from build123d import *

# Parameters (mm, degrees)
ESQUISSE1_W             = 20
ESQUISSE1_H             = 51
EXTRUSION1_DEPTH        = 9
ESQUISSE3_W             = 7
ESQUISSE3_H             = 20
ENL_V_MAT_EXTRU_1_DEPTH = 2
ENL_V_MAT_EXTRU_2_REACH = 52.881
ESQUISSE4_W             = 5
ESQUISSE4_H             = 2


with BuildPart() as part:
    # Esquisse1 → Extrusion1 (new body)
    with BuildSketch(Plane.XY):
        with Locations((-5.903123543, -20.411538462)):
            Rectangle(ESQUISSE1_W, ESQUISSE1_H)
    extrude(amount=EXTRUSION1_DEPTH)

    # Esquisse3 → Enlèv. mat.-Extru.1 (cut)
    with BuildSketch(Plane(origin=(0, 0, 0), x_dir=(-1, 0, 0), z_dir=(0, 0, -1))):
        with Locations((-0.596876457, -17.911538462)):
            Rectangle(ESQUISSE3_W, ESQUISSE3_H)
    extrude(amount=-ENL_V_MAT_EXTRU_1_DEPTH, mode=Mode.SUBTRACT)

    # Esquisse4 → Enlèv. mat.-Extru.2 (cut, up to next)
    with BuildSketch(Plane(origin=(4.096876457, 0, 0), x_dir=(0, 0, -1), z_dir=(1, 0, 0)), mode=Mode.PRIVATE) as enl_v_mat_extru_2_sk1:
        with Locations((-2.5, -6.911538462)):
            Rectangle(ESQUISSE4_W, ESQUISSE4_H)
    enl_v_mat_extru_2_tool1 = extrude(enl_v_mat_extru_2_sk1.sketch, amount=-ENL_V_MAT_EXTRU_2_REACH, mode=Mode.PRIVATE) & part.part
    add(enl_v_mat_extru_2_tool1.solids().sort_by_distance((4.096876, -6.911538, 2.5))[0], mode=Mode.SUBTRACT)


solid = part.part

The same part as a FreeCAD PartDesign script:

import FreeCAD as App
import Part
import Sketcher
from FreeCAD import Vector


def add_polygon(sketch, points):
    """Adds a closed chain of lines whose ends are joined by coincident constraints."""
    first, n = sketch.GeometryCount, len(points)
    for a, b in zip(points, points[1:] + points[:1]):
        sketch.addGeometry(Part.LineSegment(App.Vector(*a, 0), App.Vector(*b, 0)), False)
    for i in range(n):
        sketch.addConstraint(Sketcher.Constraint("Coincident", first + i, 2, first + (i + 1) % n, 1))

doc = App.newDocument("Part")
params = doc.addObject("Spreadsheet::Sheet", "Params")
for row, (alias, value) in enumerate([
    ("sketch1_width", "20 mm"),
    ("sketch1_height", "51 mm"),
    ("pad1_length", "9 mm"),
    ("sketch2_width", "7 mm"),
    ("sketch2_height", "20 mm"),
    ("pocket1_length", "2 mm"),
    ("sketch3_width", "2 mm"),
    ("sketch3_height", "5 mm"),
], start=1):
    params.set(f"A{row}", alias)
    params.set(f"B{row}", "=" + value)
    params.setAlias(f"B{row}", alias)

body = doc.addObject("PartDesign::Body", "Body")

# Sketch on XY plane
sketch1 = body.newObject("Sketcher::SketchObject", "Sketch")
sketch1.AttachmentSupport = (doc.getObject("XY_Plane"), [""])
sketch1.MapMode = "FlatFace"
add_polygon(sketch1, [(-16, 5), (-16, -46), (4, -46), (4, 5)])  # lines 0-3
sketch1.addConstraint([
    Sketcher.Constraint("Vertical", 0),
    Sketcher.Constraint("Horizontal", 1),
    Sketcher.Constraint("Vertical", 2),
    Sketcher.Constraint("Horizontal", 3),
    Sketcher.Constraint("DistanceX", 1, 1, 1, 2, 20.0),
    Sketcher.Constraint("DistanceY", 0, 2, 0, 1, 51.0),
    Sketcher.Constraint("DistanceY", 0, 2, -1, 1, 45.911538),
    Sketcher.Constraint("DistanceX", 0, 2, -1, 1, 15.903124),
])
sketch1.setExpression("Constraints[8]", "Params.sketch1_width")
sketch1.setExpression("Constraints[9]", "Params.sketch1_height")
pad1 = body.newObject("PartDesign::Pad", "Pad")
pad1.Profile = sketch1
pad1.setExpression("Length", "Params.pad1_length")

# Sketch on XY plane
sketch2 = body.newObject("Sketcher::SketchObject", "Sketch001")
sketch2.AttachmentSupport = (doc.getObject("XY_Plane"), [""])
sketch2.MapMode = "FlatFace"
add_polygon(sketch2, [(4, -8), (4, -28), (-3, -28), (-3, -8)])  # lines 0-3
sketch2.addConstraint([
    Sketcher.Constraint("Vertical", 0),
    Sketcher.Constraint("Horizontal", 1),
    Sketcher.Constraint("Vertical", 2),
    Sketcher.Constraint("Horizontal", 3),
    Sketcher.Constraint("DistanceX", 1, 2, 1, 1, 7.0),
    Sketcher.Constraint("DistanceY", 0, 2, 0, 1, 20.0),
    Sketcher.Constraint("DistanceY", 0, 2, -1, 1, 27.911538),
    Sketcher.Constraint("DistanceX", -1, 1, 0, 2, 4.096876),
])
sketch2.setExpression("Constraints[8]", "Params.sketch2_width")
sketch2.setExpression("Constraints[9]", "Params.sketch2_height")
pocket1 = body.newObject("PartDesign::Pocket", "Pocket")
pocket1.Profile = sketch2
pocket1.setExpression("Length", "Params.pocket1_length")
pocket1.Reversed = True

# Sketch on YZ plane
sketch3 = body.newObject("Sketcher::SketchObject", "Sketch002")
sketch3.AttachmentSupport = (doc.getObject("YZ_Plane"), [""])
sketch3.MapMode = "FlatFace"
sketch3.AttachmentOffset = App.Placement(Vector(0, 0, 4.096876), App.Rotation())
add_polygon(sketch3, [(-5.9, 5), (-7.9, 5), (-7.9, 0), (-5.9, 0)])  # lines 0-3
sketch3.addConstraint([
    Sketcher.Constraint("Horizontal", 0),
    Sketcher.Constraint("Vertical", 1),
    Sketcher.Constraint("Horizontal", 2),
    Sketcher.Constraint("Vertical", 3),
    Sketcher.Constraint("PointOnObject", 1, 2, -1),
    Sketcher.Constraint("DistanceX", 0, 2, 0, 1, 2.0),
    Sketcher.Constraint("DistanceY", 1, 2, 1, 1, 5.0),
    Sketcher.Constraint("DistanceX", 0, 2, -1, 1, 7.911538),
])
sketch3.setExpression("Constraints[9]", "Params.sketch3_width")
sketch3.setExpression("Constraints[10]", "Params.sketch3_height")
pocket2 = body.newObject("PartDesign::Pocket", "Pocket001")
pocket2.Profile = sketch3
pocket2.Type = "UpToFirst"

doc.recompute()
